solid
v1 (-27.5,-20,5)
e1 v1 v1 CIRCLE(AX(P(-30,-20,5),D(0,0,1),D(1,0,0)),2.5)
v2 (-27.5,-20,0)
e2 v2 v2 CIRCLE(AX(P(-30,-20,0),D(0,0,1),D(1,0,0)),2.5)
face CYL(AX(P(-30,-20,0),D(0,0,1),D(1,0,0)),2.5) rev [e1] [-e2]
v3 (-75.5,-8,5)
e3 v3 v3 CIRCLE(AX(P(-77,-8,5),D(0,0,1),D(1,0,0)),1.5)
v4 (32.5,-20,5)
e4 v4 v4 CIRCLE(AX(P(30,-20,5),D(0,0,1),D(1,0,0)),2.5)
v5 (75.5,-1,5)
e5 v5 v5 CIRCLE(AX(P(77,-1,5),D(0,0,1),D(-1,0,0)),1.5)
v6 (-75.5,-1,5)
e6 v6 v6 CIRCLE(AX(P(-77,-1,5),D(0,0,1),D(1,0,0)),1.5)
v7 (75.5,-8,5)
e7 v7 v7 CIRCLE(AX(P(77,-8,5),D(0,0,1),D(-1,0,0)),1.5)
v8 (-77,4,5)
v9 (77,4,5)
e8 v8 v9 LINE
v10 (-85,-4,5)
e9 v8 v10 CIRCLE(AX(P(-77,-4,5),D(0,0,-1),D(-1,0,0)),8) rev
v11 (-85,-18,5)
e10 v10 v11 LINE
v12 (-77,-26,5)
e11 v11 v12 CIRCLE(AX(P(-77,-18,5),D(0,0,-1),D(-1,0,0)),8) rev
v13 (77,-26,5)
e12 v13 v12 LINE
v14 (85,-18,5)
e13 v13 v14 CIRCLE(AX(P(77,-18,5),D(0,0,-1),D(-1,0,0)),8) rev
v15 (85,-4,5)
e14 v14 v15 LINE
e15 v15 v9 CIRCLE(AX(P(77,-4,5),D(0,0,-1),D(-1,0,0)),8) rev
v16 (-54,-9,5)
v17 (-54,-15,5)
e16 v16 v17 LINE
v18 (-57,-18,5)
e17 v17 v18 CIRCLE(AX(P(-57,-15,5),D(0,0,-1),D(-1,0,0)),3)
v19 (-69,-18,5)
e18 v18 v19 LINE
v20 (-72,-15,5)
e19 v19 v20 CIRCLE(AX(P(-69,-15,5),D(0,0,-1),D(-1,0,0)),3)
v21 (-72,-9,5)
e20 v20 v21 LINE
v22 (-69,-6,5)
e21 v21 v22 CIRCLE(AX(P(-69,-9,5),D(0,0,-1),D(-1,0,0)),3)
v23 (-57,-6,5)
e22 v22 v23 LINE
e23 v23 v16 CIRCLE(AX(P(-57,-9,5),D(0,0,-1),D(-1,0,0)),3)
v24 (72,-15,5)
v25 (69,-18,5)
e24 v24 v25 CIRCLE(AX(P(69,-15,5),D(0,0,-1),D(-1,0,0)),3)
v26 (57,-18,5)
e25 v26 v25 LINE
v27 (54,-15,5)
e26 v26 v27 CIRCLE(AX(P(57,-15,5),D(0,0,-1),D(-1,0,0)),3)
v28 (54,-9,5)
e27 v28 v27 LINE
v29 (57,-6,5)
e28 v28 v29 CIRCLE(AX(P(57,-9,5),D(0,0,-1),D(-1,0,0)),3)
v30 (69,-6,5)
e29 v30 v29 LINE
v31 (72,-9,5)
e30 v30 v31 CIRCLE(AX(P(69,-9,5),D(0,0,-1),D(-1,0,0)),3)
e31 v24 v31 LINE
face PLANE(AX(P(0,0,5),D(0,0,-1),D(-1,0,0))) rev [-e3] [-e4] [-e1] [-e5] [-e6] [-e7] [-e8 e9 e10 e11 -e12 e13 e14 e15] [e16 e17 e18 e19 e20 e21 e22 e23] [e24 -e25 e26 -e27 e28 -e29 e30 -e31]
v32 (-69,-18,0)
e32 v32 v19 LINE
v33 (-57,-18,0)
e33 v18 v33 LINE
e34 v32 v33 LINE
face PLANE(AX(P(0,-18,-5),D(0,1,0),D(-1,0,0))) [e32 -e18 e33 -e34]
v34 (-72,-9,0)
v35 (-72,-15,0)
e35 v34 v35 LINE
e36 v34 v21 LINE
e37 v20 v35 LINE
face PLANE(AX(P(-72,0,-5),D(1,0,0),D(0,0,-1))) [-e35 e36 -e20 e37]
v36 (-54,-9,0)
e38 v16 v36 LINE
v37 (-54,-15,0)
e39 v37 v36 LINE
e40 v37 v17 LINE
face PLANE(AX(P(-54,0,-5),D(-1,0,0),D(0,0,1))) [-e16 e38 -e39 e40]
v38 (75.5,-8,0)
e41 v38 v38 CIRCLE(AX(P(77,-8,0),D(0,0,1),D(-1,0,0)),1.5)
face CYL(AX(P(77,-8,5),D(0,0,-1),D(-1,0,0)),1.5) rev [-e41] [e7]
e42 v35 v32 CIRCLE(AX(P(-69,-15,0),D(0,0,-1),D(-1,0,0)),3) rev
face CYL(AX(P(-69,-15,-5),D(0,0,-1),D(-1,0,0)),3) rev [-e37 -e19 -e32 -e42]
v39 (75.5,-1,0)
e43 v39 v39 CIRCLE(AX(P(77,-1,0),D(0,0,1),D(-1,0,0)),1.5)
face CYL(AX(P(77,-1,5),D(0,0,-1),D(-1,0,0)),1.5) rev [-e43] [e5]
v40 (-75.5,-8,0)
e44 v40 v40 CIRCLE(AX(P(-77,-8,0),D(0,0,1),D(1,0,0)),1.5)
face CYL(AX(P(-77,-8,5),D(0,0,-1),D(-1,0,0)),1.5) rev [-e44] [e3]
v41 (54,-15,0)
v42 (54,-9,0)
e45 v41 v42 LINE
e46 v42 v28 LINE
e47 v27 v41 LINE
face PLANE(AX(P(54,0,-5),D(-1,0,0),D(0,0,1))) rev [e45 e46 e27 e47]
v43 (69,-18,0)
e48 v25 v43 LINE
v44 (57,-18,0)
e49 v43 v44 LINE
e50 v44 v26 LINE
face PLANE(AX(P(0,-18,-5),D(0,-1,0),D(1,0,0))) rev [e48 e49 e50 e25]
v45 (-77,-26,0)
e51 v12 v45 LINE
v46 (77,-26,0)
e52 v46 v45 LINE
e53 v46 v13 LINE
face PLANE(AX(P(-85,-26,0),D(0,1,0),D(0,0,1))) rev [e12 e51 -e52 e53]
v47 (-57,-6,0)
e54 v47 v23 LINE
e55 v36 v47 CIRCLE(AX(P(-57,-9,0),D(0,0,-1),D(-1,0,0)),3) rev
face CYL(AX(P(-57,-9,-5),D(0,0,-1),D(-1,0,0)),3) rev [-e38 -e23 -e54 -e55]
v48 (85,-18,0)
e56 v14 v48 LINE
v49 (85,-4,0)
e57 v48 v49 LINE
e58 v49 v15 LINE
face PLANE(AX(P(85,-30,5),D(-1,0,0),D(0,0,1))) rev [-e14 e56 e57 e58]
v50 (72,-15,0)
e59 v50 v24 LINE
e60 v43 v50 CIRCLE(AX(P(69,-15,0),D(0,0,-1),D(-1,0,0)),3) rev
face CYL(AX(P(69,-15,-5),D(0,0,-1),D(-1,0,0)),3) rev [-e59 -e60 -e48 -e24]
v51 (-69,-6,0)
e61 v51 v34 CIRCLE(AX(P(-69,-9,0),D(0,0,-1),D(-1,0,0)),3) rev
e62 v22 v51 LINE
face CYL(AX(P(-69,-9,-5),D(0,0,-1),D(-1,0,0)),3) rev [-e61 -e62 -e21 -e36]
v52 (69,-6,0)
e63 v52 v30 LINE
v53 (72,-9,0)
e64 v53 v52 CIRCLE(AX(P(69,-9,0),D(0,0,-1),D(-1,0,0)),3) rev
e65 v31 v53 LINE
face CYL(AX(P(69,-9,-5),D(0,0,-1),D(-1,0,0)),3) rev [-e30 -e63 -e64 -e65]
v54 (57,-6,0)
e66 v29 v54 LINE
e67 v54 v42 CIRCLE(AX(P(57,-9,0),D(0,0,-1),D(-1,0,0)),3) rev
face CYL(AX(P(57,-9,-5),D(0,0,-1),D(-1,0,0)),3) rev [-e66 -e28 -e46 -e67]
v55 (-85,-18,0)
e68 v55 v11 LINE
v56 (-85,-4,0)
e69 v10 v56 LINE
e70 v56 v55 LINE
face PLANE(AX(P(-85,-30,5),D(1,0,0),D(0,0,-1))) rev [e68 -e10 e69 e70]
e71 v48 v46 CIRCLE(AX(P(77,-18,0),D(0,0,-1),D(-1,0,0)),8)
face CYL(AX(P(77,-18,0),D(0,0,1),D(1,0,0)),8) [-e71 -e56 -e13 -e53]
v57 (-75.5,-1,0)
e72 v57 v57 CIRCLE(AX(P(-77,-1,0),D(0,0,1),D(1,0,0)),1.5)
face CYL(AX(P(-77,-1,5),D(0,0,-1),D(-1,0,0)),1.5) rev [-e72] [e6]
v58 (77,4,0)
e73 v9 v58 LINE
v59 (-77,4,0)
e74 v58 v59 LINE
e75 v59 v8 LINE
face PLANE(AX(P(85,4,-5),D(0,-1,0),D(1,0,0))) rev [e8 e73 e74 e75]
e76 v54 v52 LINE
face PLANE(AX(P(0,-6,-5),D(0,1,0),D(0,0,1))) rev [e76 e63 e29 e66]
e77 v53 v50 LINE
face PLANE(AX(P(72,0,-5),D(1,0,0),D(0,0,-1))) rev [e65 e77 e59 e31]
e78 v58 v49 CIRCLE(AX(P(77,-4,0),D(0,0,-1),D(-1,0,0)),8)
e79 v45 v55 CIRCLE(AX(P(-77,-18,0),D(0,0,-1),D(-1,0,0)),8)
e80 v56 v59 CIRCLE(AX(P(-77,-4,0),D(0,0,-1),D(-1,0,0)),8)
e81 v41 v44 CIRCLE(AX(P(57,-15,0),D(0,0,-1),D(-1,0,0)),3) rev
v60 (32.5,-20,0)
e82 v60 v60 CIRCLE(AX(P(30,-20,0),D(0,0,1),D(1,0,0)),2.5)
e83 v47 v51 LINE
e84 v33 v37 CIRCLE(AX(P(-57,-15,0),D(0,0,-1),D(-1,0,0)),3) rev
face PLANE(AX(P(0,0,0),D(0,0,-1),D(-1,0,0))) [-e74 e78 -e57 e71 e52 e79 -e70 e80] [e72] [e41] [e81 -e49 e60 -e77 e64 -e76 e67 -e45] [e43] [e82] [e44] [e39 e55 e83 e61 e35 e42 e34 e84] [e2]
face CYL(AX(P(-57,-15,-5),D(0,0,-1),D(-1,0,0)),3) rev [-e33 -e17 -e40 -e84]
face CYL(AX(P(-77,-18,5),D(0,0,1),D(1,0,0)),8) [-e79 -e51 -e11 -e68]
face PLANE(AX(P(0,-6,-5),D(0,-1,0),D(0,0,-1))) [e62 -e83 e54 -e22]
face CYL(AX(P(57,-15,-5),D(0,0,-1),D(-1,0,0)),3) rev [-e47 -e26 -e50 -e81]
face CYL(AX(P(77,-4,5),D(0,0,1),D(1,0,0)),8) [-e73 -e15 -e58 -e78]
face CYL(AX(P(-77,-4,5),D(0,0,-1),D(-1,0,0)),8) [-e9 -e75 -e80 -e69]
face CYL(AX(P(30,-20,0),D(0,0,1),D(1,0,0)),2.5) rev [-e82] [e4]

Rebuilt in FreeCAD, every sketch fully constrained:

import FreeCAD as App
import Part
import Sketcher


def edges_at(feature, points):
    """Names of the edges that pass closest to the given points."""
    edges = feature.Shape.Edges
    near = lambda p: min(range(len(edges)), key=lambda i: edges[i].distToShape(Part.Vertex(*p))[0])
    return sorted({f"Edge{near(p) + 1}" for p in points})


def add_polygon(sketch, points):
    """Adds a closed chain of lines whose ends are joined by coincident constraints."""
    first, n = sketch.GeometryCount, len(points)
    for a, b in zip(points, points[1:] + points[:1]):
        sketch.addGeometry(Part.LineSegment(App.Vector(*a, 0), App.Vector(*b, 0)), False)
    for i in range(n):
        sketch.addConstraint(Sketcher.Constraint("Coincident", first + i, 2, first + (i + 1) % n, 1))

doc = App.newDocument("Part")
body = doc.addObject("PartDesign::Body", "Body")

sketch1 = doc.addObject("Sketcher::SketchObject", "Sketch")
body.addObject(sketch1)
sketch1.AttachmentSupport = (doc.XY_Plane, [""])
sketch1.MapMode = "FlatFace"
add_polygon(sketch1, [(-85, 30), (-85, -30), (85, -30), (85, 30)])
sketch1.addGeometry(Part.Circle(App.Vector(-77, -8, 0), App.Vector(0, 0, 1), 1.5), False)
sketch1.addGeometry(Part.Circle(App.Vector(77, -8, 0), App.Vector(0, 0, 1), 1.5), False)
sketch1.addGeometry(Part.Circle(App.Vector(-77, -1, 0), App.Vector(0, 0, 1), 1.5), False)
sketch1.addGeometry(Part.Circle(App.Vector(77, -1, 0), App.Vector(0, 0, 1), 1.5), False)
sketch1.addConstraint([
    Sketcher.Constraint("Vertical", 0),
    Sketcher.Constraint("Horizontal", 1),
    Sketcher.Constraint("Vertical", 2),
    Sketcher.Constraint("Horizontal", 3),
    Sketcher.Constraint("Equal", 4, 5),
    Sketcher.Constraint("Equal", 5, 6),
    Sketcher.Constraint("Equal", 6, 7),
    Sketcher.Constraint("Symmetric", 0, 2, 2, 2, -1, 1),
    Sketcher.Constraint("Symmetric", 4, 3, 5, 3, -2),
    Sketcher.Constraint("Symmetric", 6, 3, 7, 3, -2),
    Sketcher.Constraint("Vertical", 4, 3, 6, 3),
    Sketcher.Constraint("Diameter", 4, 3.0),
    Sketcher.Constraint("DistanceX", 1, 1, 1, 2, 170.0),
    Sketcher.Constraint("DistanceY", 0, 2, 0, 1, 60.0),
    Sketcher.Constraint("DistanceX", 4, 3, -1, 1, 77.0),
    Sketcher.Constraint("DistanceY", 4, 3, -1, 1, 8.0),
    Sketcher.Constraint("DistanceY", 6, 3, -1, 1, 1.0),
])
pad1 = doc.addObject("PartDesign::Pad", "Pad")
body.addObject(pad1)
pad1.Profile = sketch1
pad1.Length = 5

sketch2 = doc.addObject("Sketcher::SketchObject", "Sketch001")
body.addObject(sketch2)
sketch2.AttachmentSupport = (doc.XY_Plane, [""])
sketch2.MapMode = "FlatFace"
sketch2.AttachmentOffset = App.Placement(App.Vector(0, 0, 5), App.Rotation())
sketch2.addGeometry([
    Part.Circle(App.Vector(-30, -20, 0), App.Vector(0, 0, 1), 2.5),
    Part.Circle(App.Vector(30, -20, 0), App.Vector(0, 0, 1), 2.5),
], False)
sketch2.addConstraint([
    Sketcher.Constraint("Equal", 0, 1),
    Sketcher.Constraint("Symmetric", 0, 3, 1, 3, -2),
    Sketcher.Constraint("Diameter", 0, 5.0),
    Sketcher.Constraint("DistanceX", 0, 3, -1, 1, 30.0),
    Sketcher.Constraint("DistanceY", 0, 3, -1, 1, 20.0),
])
pocket1 = doc.addObject("PartDesign::Pocket", "Pocket")
body.addObject(pocket1)
pocket1.Profile = sketch2
pocket1.Length = 5

sketch3 = doc.addObject("Sketcher::SketchObject", "Sketch002")
body.addObject(sketch3)
sketch3.AttachmentSupport = (doc.XY_Plane, [""])
sketch3.MapMode = "FlatFace"
sketch3.AttachmentOffset = App.Placement(App.Vector(0, 0, 5), App.Rotation())
add_polygon(sketch3, [(-85, 30), (-85, 4), (85, 4), (85, 30)])
sketch3.addConstraint([
    Sketcher.Constraint("Vertical", 0),
    Sketcher.Constraint("Horizontal", 1),
    Sketcher.Constraint("Vertical", 2),
    Sketcher.Constraint("Horizontal", 3),
    Sketcher.Constraint("DistanceX", 1, 1, 1, 2, 170.0),
    Sketcher.Constraint("DistanceY", 0, 2, 0, 1, 26.0),
    Sketcher.Constraint("DistanceX", 0, 2, -1, 1, 85.0),
    Sketcher.Constraint("DistanceY", -1, 1, 0, 2, 4.0),
])
pocket2 = doc.addObject("PartDesign::Pocket", "Pocket001")
body.addObject(pocket2)
pocket2.Profile = sketch3
pocket2.Length = 10

sketch4 = doc.addObject("Sketcher::SketchObject", "Sketch003")
body.addObject(sketch4)
sketch4.AttachmentSupport = (doc.XY_Plane, [""])
sketch4.MapMode = "FlatFace"
sketch4.AttachmentOffset = App.Placement(App.Vector(0, 0, 5), App.Rotation())
add_polygon(sketch4, [(-72, -6), (-72, -18), (-54, -18), (-54, -6)])
add_polygon(sketch4, [(54, -6), (54, -18), (72, -18), (72, -6)])
sketch4.addConstraint([
    Sketcher.Constraint("Vertical", 0),
    Sketcher.Constraint("Horizontal", 1),
    Sketcher.Constraint("Vertical", 2),
    Sketcher.Constraint("Horizontal", 3),
    Sketcher.Constraint("Vertical", 4),
    Sketcher.Constraint("Horizontal", 5),
    Sketcher.Constraint("Vertical", 6),
    Sketcher.Constraint("Horizontal", 7),
    Sketcher.Constraint("Symmetric", 1, 2, 4, 2, -2),
    Sketcher.Constraint("Symmetric", 3, 2, 6, 2, -2),
    Sketcher.Constraint("DistanceX", 1, 1, 1, 2, 18.0),
    Sketcher.Constraint("DistanceY", 0, 2, 0, 1, 12.0),
    Sketcher.Constraint("DistanceX", 0, 2, -1, 1, 72.0),
    Sketcher.Constraint("DistanceY", 0, 2, -1, 1, 18.0),
])
pocket3 = doc.addObject("PartDesign::Pocket", "Pocket002")
body.addObject(pocket3)
pocket3.Profile = sketch4
pocket3.Length = 10
doc.recompute()

fillet = doc.addObject("PartDesign::Fillet", "Fillet")
body.addObject(fillet)
fillet.Base = (pocket3, edges_at(pocket3, [
    (-72, -18, 2.5),
    (-72, -6, 2.5),
    (-54, -6, 2.5),
    (-54, -18, 2.5),
    (72, -6, 2.5),
    (72, -18, 2.5),
    (54, -18, 2.5),
    (54, -6, 2.5),
]))
fillet.Radius = 3

sketch5 = doc.addObject("Sketcher::SketchObject", "Sketch004")
body.addObject(sketch5)
sketch5.AttachmentSupport = (doc.XY_Plane, [""])
sketch5.MapMode = "FlatFace"
sketch5.AttachmentOffset = App.Placement(App.Vector(0, 0, 5), App.Rotation())
add_polygon(sketch5, [(-85, -26), (-85, -30), (85, -30), (85, -26)])
sketch5.addConstraint([
    Sketcher.Constraint("Vertical", 0),
    Sketcher.Constraint("Horizontal", 1),
    Sketcher.Constraint("Vertical", 2),
    Sketcher.Constraint("Horizontal", 3),
    Sketcher.Constraint("DistanceX", 1, 1, 1, 2, 170.0),
    Sketcher.Constraint("DistanceY", 0, 2, 0, 1, 4.0),
    Sketcher.Constraint("DistanceX", 0, 2, -1, 1, 85.0),
    Sketcher.Constraint("DistanceY", 0, 2, -1, 1, 30.0),
])
pocket4 = doc.addObject("PartDesign::Pocket", "Pocket003")
body.addObject(pocket4)
pocket4.Profile = sketch5
pocket4.Type = "ThroughAll"
doc.recompute()

fillet2 = doc.addObject("PartDesign::Fillet", "Fillet001")
body.addObject(fillet2)
fillet2.Base = (pocket4, edges_at(pocket4, [
    (-85, -26, 2.5),
    (85, -26, 2.5),
    (-85, 4, 2.5),
    (85, 4, 2.5),
]))
fillet2.Radius = 8

doc.recompute()
